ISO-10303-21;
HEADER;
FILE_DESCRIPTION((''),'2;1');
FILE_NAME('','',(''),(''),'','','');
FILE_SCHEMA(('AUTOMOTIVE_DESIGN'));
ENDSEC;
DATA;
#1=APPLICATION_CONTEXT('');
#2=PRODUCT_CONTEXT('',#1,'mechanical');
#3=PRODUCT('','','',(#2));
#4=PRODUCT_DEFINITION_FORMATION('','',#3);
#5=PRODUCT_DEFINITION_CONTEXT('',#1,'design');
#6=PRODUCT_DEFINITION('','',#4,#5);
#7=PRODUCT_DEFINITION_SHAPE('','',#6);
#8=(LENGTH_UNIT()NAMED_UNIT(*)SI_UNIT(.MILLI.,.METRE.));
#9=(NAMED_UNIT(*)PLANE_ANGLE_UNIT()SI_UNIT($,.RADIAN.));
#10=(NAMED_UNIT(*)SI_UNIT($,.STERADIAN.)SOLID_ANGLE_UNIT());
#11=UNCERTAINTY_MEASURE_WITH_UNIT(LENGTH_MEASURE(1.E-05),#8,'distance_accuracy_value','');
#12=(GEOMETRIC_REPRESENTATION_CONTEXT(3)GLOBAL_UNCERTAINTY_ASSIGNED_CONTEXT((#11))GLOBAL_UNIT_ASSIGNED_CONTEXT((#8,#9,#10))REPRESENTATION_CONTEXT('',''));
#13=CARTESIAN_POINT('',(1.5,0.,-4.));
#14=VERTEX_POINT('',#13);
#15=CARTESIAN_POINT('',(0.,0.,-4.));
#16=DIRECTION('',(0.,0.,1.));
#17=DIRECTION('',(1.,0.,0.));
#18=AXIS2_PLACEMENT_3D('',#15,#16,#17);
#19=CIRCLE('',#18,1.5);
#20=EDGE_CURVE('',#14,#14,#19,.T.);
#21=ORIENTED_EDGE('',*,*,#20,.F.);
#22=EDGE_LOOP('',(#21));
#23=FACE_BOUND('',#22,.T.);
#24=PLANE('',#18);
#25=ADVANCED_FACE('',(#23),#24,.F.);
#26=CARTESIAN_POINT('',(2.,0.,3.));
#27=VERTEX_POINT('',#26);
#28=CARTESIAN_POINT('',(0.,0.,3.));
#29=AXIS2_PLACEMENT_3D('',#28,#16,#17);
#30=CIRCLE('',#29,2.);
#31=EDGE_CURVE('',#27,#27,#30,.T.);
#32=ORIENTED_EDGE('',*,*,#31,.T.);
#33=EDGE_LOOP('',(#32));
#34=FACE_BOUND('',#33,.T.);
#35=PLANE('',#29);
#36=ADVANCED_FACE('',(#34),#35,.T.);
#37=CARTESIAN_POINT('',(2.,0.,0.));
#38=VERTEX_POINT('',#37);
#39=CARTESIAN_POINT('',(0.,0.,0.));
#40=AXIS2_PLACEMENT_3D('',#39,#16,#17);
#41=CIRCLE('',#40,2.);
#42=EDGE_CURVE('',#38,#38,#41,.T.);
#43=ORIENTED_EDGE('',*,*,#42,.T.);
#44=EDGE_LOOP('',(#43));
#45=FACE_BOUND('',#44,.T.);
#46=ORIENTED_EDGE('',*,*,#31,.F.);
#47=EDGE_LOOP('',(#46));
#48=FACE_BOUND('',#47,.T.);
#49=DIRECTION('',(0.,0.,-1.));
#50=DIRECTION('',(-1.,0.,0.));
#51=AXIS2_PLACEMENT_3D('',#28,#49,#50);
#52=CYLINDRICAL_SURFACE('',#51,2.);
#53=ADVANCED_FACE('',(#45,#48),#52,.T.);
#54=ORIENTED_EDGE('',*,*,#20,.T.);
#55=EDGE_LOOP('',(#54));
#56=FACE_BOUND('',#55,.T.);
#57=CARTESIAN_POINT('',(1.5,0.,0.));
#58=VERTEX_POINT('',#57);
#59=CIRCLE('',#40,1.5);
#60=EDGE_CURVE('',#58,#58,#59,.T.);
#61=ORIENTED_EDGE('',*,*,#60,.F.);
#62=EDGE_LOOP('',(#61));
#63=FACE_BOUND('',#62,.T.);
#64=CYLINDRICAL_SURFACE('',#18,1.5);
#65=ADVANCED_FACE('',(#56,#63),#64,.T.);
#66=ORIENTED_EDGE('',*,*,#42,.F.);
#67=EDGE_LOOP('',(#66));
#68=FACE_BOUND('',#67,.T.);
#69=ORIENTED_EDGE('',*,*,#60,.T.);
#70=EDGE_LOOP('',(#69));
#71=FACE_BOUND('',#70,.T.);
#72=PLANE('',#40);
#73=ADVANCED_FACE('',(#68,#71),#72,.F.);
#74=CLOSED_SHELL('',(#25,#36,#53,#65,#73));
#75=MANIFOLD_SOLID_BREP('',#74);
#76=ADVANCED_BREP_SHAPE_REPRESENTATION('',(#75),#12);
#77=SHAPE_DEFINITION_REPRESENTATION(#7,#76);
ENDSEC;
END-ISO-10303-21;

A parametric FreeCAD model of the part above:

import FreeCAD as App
import Part
import Sketcher
Q = App.Units.Quantity

doc = App.newDocument("Part")
params = doc.addObject("Spreadsheet::Sheet", "Params")
for row, (alias, value) in enumerate([
    ("sketch1_diameter", "4 mm"),
    ("pad1_length", "3 mm"),
    ("sketch2_diameter", "3 mm"),
    ("pad2_length", "4 mm"),
], start=1):
    params.set(f"A{row}", alias)
    params.set(f"B{row}", "=" + value)
    params.setAlias(f"B{row}", alias)

body = doc.addObject("PartDesign::Body", "Body")

sketch1 = body.newObject("Sketcher::SketchObject", "Sketch")
sketch1.AttachmentSupport = (doc.getObject("XY_Plane"), [""])
sketch1.MapMode = "FlatFace"
sketch1.addGeometry(Part.Circle(App.Vector(0, 0, 0), App.Vector(0, 0, 1), 2), False)
sketch1.addConstraint([
    Sketcher.Constraint("Coincident", 0, 3, -1, 1),
    Sketcher.Constraint("Diameter", 0, Q("4 mm")),
])
sketch1.setExpression("Constraints[1]", "Params.sketch1_diameter")
pad1 = body.newObject("PartDesign::Pad", "Pad")
pad1.Profile = sketch1
pad1.setExpression("Length", "Params.pad1_length")

sketch2 = body.newObject("Sketcher::SketchObject", "Sketch001")
sketch2.AttachmentSupport = (doc.getObject("XY_Plane"), [""])
sketch2.MapMode = "FlatFace"
sketch2.addGeometry(Part.Circle(App.Vector(0, 0, 0), App.Vector(0, 0, 1), 1.5), False)
sketch2.addConstraint([
    Sketcher.Constraint("Coincident", 0, 3, -1, 1),
    Sketcher.Constraint("Diameter", 0, Q("3 mm")),
])
sketch2.setExpression("Constraints[1]", "Params.sketch2_diameter")
pad2 = body.newObject("PartDesign::Pad", "Pad001")
pad2.Profile = sketch2
pad2.setExpression("Length", "Params.pad2_length")
pad2.Reversed = True

doc.recompute()
